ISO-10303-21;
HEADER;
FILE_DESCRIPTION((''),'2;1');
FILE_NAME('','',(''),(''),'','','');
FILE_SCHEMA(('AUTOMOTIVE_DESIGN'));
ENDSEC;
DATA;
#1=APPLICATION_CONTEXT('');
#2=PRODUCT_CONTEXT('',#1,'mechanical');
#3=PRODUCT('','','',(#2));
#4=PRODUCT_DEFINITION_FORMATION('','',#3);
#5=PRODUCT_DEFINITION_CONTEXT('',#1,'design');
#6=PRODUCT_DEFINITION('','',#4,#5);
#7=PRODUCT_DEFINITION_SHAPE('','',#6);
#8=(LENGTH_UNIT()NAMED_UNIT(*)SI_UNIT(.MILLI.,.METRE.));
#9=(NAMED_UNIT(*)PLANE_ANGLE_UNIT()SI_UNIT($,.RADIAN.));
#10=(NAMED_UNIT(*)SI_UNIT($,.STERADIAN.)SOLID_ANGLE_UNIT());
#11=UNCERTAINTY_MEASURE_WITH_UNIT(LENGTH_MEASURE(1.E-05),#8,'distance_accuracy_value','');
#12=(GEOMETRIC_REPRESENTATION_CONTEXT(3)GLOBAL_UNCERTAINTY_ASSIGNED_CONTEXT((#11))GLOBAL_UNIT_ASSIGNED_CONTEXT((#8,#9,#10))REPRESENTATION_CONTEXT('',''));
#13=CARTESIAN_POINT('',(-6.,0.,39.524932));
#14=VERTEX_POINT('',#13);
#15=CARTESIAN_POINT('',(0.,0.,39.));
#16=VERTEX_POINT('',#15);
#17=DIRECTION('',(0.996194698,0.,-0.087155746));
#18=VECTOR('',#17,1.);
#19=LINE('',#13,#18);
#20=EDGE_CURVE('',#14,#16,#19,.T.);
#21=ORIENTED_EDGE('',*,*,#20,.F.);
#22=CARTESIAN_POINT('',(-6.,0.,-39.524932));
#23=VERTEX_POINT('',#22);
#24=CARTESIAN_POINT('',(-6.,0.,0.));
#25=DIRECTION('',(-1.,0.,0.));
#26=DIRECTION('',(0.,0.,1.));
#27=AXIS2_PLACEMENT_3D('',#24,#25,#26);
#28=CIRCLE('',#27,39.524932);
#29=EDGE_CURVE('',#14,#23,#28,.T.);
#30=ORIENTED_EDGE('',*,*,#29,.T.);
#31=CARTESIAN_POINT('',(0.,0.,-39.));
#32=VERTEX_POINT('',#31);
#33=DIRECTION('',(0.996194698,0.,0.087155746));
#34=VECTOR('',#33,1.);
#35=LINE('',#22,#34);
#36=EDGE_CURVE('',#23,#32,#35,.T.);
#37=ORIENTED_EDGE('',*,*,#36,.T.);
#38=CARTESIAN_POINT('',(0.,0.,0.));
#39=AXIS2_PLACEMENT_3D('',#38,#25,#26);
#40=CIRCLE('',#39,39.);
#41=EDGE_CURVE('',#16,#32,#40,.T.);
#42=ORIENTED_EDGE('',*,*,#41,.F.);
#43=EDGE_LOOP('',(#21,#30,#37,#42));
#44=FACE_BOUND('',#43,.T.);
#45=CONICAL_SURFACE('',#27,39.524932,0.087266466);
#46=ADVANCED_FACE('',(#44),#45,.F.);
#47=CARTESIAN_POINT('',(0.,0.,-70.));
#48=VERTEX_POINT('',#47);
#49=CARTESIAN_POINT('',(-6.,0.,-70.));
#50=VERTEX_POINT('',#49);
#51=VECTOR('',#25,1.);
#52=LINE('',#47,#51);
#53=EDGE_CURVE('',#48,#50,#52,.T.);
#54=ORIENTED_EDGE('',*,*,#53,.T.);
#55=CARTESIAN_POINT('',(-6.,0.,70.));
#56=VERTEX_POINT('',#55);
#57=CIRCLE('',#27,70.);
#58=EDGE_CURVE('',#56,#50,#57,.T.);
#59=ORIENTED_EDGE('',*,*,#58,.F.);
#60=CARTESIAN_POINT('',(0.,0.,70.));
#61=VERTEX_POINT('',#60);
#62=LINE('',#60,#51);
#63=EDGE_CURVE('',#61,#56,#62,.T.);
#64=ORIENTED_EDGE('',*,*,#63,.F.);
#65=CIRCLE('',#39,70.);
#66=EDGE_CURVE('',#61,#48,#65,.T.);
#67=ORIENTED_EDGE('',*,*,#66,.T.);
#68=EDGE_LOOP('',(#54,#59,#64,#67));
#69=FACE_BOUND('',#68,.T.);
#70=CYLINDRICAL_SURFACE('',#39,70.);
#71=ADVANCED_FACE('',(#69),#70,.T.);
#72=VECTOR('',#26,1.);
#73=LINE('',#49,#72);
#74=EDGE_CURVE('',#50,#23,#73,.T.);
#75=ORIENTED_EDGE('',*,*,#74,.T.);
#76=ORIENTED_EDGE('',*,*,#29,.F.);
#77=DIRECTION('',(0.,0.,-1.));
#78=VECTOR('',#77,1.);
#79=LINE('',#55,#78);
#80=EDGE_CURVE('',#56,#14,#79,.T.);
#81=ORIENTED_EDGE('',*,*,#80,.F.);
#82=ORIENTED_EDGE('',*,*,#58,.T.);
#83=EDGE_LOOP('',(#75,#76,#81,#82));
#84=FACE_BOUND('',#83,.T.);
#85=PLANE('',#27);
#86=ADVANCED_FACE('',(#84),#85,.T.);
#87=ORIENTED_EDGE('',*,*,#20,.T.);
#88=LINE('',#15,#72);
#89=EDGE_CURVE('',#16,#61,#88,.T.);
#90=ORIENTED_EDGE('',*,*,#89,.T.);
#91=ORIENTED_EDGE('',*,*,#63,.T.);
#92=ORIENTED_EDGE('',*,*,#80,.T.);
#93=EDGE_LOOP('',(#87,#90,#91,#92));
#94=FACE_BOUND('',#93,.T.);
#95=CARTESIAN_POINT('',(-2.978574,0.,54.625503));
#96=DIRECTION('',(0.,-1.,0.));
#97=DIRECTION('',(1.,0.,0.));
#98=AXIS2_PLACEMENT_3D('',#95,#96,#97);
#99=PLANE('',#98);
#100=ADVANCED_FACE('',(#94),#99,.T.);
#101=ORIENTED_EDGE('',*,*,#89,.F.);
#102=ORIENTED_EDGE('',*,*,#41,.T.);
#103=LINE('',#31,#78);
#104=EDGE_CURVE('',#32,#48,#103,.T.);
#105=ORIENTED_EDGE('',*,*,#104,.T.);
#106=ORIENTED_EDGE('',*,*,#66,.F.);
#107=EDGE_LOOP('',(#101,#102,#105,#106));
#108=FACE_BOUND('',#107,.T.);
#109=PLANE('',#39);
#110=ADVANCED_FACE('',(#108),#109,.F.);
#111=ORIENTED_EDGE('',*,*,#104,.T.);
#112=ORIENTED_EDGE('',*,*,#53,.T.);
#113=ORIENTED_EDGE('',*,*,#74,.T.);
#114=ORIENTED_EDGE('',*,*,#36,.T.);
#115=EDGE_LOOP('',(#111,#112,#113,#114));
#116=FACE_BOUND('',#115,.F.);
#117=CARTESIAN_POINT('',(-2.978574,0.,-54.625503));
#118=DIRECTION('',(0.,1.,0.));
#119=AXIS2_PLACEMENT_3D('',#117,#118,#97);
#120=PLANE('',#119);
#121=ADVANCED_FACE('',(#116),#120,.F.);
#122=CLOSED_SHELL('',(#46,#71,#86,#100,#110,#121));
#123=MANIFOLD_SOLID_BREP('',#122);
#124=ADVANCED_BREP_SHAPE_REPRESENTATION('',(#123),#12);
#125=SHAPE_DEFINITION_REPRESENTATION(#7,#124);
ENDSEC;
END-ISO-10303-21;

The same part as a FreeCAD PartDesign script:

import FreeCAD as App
import Part
import Sketcher
from FreeCAD import Vector
Q = App.Units.Quantity

doc = App.newDocument("Part")
body = doc.addObject("PartDesign::Body", "Body")

sketch1 = body.newObject("Sketcher::SketchObject", "Sketch")
sketch1.AttachmentSupport = (doc.getObject("XZ_Plane"), [""])
sketch1.MapMode = "FlatFace"
sketch1.addGeometry([
    Part.LineSegment(Vector(-6, 39.524932, 0), Vector(0, 39, 0)),
    Part.LineSegment(Vector(0, 39, 0), Vector(0, 70, 0)),
    Part.LineSegment(Vector(0, 70, 0), Vector(-6, 70, 0)),
    Part.LineSegment(Vector(-6, 70, 0), Vector(-6, 39.524932, 0)),
], False)
sketch1.addConstraint([
    Sketcher.Constraint("Coincident", 0, 2, 1, 1),
    Sketcher.Constraint("Coincident", 1, 2, 2, 1),
    Sketcher.Constraint("Coincident", 2, 2, 3, 1),
    Sketcher.Constraint("Coincident", 3, 2, 0, 1),
    Sketcher.Constraint("Vertical", 1),
    Sketcher.Constraint("Horizontal", 2),
    Sketcher.Constraint("Vertical", 3),
    Sketcher.Constraint("PointOnObject", 0, 2, -2),
    Sketcher.Constraint("DistanceX", 2, 2, 2, 1, Q("6 mm")),
    Sketcher.Constraint("DistanceY", 1, 1, 1, 2, Q("31 mm")),
    Sketcher.Constraint("Angle", 0, Q("-5 deg")),
    Sketcher.Constraint("DistanceY", -1, 1, 0, 2, Q("39 mm")),
])
revolution = body.newObject("PartDesign::Revolution", "Revolution")
revolution.Profile = sketch1
revolution.ReferenceAxis = (sketch1, ["H_Axis"])
revolution.Angle = 180
revolution.Reversed = True

doc.recompute()
